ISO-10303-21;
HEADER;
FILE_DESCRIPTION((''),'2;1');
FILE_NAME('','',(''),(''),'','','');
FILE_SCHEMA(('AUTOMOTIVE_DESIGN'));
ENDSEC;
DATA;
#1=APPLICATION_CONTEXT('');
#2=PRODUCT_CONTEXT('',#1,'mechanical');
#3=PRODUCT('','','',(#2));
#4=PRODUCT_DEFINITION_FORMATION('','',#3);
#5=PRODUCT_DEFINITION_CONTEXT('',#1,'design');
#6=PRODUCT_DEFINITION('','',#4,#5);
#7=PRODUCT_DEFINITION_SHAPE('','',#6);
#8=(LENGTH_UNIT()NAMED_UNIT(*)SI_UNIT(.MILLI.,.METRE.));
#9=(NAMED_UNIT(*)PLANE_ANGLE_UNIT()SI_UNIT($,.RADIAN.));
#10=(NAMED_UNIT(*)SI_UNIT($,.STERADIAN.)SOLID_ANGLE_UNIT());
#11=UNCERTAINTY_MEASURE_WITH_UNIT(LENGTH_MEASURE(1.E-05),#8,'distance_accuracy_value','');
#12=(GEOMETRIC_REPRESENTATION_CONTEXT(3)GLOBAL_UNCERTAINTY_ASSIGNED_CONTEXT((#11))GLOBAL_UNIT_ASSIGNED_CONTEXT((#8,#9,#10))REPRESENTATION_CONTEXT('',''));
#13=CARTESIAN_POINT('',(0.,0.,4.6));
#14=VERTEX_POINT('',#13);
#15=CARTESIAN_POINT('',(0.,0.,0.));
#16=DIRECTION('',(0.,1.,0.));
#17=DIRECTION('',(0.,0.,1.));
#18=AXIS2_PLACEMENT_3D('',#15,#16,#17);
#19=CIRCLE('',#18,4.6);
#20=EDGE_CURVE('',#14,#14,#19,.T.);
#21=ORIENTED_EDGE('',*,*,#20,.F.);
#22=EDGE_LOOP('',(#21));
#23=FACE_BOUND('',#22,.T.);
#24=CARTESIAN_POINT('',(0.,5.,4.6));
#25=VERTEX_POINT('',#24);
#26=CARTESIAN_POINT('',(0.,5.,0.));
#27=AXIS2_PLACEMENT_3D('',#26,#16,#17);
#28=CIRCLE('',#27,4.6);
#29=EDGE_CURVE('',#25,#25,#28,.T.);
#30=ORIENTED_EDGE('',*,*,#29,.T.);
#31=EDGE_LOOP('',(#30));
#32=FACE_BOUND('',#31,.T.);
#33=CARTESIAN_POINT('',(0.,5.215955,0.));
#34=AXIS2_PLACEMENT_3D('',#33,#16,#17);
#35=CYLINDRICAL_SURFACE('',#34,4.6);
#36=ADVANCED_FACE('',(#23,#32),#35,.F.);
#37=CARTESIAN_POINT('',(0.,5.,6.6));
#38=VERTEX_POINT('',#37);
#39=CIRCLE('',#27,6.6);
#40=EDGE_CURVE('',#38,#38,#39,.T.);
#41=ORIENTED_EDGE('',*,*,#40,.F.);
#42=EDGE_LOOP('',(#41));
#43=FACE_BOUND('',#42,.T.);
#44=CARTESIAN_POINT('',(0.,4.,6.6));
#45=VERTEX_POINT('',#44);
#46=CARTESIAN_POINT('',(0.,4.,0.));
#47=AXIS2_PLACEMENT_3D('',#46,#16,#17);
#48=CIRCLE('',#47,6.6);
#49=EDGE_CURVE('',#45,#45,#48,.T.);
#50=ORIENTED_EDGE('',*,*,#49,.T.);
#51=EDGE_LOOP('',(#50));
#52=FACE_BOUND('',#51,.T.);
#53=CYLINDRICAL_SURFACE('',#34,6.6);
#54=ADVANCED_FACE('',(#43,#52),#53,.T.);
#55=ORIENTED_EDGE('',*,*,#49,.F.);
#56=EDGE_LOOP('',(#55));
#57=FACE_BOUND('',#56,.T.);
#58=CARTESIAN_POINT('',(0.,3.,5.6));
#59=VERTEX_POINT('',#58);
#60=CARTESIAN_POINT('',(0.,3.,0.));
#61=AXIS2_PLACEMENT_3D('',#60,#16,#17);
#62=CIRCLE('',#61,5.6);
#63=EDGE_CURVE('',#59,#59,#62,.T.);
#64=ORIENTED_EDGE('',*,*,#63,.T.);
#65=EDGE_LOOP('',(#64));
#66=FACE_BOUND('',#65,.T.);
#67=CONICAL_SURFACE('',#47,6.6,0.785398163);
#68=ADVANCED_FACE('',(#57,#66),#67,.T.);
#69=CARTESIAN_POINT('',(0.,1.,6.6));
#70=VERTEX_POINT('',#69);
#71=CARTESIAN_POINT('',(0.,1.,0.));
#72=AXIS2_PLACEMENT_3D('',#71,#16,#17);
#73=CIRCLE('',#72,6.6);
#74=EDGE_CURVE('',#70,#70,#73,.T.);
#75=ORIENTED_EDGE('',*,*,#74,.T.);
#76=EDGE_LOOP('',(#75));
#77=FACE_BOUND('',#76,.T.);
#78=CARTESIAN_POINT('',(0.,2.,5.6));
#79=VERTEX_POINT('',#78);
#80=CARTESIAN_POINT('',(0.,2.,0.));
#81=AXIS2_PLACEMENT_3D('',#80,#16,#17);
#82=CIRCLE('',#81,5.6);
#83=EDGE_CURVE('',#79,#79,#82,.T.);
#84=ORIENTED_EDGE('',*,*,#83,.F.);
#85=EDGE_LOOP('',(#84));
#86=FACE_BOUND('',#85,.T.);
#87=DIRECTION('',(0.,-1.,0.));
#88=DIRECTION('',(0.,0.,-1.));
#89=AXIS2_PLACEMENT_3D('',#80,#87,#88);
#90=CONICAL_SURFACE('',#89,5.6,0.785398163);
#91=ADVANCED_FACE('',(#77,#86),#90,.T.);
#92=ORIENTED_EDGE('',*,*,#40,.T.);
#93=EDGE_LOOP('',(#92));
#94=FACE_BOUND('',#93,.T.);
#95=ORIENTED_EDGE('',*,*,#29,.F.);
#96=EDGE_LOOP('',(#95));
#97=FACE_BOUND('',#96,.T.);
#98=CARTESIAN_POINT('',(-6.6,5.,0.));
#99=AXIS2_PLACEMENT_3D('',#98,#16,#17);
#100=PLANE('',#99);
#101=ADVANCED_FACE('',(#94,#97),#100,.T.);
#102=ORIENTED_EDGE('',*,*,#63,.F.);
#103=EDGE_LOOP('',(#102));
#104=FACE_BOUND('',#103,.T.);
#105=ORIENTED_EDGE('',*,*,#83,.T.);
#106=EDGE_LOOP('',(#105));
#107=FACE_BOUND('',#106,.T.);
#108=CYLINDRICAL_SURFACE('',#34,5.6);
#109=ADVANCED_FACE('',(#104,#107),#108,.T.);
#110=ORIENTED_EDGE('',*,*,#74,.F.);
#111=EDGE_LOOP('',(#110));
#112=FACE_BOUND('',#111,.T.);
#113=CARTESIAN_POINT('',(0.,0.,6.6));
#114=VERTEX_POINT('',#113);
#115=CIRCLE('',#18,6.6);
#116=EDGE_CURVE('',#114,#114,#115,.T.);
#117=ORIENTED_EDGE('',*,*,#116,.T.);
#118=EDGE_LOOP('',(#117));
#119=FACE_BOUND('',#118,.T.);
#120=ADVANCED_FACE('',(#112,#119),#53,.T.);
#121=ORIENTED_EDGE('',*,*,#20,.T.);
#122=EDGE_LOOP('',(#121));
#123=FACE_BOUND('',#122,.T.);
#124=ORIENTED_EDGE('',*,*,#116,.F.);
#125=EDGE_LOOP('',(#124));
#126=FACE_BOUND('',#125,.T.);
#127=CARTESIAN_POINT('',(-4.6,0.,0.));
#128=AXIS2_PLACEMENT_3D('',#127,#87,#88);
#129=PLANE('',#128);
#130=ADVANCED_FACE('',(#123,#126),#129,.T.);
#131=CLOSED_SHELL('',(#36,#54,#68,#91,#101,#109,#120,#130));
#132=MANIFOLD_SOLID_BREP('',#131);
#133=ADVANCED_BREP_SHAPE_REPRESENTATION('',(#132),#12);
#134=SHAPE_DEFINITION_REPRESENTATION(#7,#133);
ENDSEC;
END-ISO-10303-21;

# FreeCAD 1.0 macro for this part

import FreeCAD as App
import Part
import Sketcher

V = App.Vector


def add_polygon(sketch, points):
    """Adds a closed chain of lines whose ends are joined by coincident constraints."""
    first, n = sketch.GeometryCount, len(points)
    for a, b in zip(points, points[1:] + points[:1]):
        sketch.addGeometry(Part.LineSegment(App.Vector(*a, 0), App.Vector(*b, 0)), False)
    for i in range(n):
        sketch.addConstraint(Sketcher.Constraint("Coincident", first + i, 2, first + (i + 1) % n, 1))

doc = App.newDocument("Part")
body = doc.addObject("PartDesign::Body", "Body")

# Sketch on XY plane
sketch1 = body.newObject("Sketcher::SketchObject", "Sketch")
sketch1.AttachmentSupport = (doc.getObject("XY_Plane"), [""])
sketch1.MapMode = "FlatFace"
add_polygon(sketch1, [(-6.6, 0), (-4.6, 0), (-4.6, 5), (-6.6, 5), (-6.6, 4), (-5.6, 3), (-5.6, 2), (-6.6, 1)])  # lines 0-7
sketch1.addConstraint([
    Sketcher.Constraint("Horizontal", 0),
    Sketcher.Constraint("Vertical", 1),
    Sketcher.Constraint("Horizontal", 2),
    Sketcher.Constraint("Vertical", 3),
    Sketcher.Constraint("Vertical", 5),
    Sketcher.Constraint("Vertical", 7),
    Sketcher.Constraint("PointOnObject", 0, 2, -1),
    Sketcher.Constraint("Perpendicular", 4, 6),
    Sketcher.Constraint("Vertical", 3, 2, 6, 2),
    Sketcher.Constraint("Equal", 3, 5),
    Sketcher.Constraint("Equal", 5, 7),
    Sketcher.Constraint("Equal", 4, 6),
    Sketcher.Constraint("DistanceX", 0, 1, 0, 2, 2.0),
    Sketcher.Constraint("DistanceY", 1, 1, 1, 2, 5.0),
    Sketcher.Constraint("DistanceY", 3, 2, 3, 1, 1.0),
    Sketcher.Constraint("DistanceX", 0, 2, -1, 1, 4.6),
])
revolution = body.newObject("PartDesign::Revolution", "Revolution")
revolution.Profile = sketch1
revolution.ReferenceAxis = (sketch1, ["V_Axis"])
revolution.Angle = 360

doc.recompute()
